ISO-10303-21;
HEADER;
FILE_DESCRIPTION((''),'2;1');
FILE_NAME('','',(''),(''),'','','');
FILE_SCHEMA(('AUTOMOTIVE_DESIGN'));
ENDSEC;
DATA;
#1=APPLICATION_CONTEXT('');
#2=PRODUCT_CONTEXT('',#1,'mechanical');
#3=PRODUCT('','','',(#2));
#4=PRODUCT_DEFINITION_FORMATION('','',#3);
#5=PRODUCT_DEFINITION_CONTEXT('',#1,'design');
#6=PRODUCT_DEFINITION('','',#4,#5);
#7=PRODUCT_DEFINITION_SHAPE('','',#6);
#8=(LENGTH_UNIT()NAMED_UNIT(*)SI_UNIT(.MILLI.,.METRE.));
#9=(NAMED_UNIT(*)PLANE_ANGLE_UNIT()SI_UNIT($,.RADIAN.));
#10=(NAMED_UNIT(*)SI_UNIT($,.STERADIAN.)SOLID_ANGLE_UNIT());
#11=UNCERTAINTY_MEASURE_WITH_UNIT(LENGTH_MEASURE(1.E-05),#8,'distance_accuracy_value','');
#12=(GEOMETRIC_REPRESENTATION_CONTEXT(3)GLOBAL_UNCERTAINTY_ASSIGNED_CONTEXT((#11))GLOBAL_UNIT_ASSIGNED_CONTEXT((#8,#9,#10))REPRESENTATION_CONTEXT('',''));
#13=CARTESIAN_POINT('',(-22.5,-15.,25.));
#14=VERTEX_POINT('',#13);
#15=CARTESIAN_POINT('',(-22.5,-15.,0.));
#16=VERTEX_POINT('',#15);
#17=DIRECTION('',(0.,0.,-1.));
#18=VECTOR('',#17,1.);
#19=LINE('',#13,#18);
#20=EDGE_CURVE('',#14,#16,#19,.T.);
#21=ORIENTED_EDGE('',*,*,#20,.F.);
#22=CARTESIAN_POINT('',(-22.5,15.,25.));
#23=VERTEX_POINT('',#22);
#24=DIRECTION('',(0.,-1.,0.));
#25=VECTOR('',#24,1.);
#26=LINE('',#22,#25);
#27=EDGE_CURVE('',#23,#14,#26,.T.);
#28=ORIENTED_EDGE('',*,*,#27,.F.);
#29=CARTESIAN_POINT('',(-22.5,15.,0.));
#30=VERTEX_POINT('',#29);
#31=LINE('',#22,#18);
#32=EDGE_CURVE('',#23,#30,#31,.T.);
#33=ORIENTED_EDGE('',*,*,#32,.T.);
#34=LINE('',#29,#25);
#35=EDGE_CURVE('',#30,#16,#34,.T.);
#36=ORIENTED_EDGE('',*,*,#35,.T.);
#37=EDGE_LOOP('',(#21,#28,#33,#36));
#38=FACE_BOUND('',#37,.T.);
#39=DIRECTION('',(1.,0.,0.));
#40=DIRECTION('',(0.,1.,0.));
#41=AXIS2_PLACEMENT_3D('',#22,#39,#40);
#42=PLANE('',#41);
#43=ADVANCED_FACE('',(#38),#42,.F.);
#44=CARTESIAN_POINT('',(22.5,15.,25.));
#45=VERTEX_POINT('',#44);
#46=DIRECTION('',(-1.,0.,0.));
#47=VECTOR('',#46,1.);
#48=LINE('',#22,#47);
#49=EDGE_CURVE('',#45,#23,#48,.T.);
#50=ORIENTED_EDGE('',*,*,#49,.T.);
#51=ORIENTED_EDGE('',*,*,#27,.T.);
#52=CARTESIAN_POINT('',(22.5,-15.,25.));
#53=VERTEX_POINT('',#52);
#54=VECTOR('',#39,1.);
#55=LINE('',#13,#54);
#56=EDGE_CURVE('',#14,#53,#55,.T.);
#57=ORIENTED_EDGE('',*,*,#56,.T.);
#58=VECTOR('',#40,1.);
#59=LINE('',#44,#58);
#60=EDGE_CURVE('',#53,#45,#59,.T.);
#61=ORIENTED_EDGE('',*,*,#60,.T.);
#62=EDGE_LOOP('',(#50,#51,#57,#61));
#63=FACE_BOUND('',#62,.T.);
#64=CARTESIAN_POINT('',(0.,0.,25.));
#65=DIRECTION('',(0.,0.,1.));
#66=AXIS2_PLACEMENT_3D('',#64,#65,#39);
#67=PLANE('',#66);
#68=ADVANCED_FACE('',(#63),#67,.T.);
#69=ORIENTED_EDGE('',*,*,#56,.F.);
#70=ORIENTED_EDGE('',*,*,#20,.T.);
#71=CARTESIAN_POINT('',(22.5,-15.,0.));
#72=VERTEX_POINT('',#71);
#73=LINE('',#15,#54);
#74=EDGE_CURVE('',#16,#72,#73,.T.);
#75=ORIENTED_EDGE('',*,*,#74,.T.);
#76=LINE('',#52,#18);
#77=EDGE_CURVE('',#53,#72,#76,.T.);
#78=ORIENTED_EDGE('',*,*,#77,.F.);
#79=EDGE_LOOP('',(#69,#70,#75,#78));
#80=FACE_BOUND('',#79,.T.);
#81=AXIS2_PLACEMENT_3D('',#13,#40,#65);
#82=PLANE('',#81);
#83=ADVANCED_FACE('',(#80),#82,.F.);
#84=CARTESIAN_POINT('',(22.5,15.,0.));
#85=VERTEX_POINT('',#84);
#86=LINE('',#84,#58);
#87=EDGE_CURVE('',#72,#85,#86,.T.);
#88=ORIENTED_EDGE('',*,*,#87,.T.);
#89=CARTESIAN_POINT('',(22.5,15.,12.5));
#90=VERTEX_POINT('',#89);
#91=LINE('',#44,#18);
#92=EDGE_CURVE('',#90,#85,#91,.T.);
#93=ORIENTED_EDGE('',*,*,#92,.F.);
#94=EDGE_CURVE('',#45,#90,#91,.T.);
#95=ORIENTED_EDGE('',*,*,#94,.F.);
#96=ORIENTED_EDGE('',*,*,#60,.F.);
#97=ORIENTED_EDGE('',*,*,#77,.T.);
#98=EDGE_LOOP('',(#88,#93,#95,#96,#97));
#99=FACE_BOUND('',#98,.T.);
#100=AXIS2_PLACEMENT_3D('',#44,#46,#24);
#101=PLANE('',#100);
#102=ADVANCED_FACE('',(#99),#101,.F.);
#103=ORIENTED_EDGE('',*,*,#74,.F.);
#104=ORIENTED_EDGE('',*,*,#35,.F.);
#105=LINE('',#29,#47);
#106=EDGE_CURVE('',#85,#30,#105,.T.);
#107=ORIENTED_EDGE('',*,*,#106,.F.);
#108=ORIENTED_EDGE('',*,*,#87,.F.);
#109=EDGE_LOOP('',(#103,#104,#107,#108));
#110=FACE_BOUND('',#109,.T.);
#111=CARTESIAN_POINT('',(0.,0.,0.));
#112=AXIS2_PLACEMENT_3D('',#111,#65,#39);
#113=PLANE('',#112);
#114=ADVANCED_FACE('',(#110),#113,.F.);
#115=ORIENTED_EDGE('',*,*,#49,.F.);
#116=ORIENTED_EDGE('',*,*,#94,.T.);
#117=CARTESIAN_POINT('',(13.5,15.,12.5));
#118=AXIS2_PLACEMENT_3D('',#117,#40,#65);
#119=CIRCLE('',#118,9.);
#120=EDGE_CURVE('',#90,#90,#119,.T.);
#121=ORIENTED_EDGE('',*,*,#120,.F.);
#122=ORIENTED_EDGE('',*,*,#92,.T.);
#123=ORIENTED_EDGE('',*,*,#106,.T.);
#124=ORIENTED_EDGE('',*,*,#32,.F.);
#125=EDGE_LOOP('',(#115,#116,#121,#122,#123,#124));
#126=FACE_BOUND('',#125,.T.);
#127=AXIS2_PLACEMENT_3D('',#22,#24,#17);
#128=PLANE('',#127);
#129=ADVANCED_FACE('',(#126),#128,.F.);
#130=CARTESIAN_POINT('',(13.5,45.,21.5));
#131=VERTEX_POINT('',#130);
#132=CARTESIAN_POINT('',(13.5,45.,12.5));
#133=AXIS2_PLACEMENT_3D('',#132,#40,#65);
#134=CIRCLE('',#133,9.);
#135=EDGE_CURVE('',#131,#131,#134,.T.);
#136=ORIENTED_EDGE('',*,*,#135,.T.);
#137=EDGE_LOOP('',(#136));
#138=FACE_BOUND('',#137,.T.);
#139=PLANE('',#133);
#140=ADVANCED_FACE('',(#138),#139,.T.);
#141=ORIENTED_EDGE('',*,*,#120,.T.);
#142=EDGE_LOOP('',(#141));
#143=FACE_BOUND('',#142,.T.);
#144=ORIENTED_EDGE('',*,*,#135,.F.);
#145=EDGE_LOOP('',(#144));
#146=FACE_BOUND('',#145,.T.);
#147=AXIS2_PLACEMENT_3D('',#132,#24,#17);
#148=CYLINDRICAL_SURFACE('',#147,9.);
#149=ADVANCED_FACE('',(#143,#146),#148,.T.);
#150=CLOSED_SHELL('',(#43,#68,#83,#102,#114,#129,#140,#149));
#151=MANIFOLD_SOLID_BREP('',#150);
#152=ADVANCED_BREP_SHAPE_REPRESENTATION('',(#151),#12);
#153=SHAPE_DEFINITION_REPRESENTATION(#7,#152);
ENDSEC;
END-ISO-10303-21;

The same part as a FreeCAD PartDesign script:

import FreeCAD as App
import Part
import Sketcher

V = App.Vector
Q = App.Units.Quantity

doc = App.newDocument("Part")
params = doc.addObject("Spreadsheet::Sheet", "Params")
for row, (alias, value) in enumerate([
    ("sketch1_width", "45 mm"),
    ("sketch1_height", "30 mm"),
    ("pad1_length", "25 mm"),
    ("sketch2_diameter", "18 mm"),
    ("pad2_length", "30 mm"),
], start=1):
    params.set(f"A{row}", alias)
    params.set(f"B{row}", "=" + value)
    params.setAlias(f"B{row}", alias)

body = doc.addObject("PartDesign::Body", "Body")

# Sketch on XY plane
sketch1 = body.newObject("Sketcher::SketchObject", "Sketch")
sketch1.AttachmentSupport = (doc.getObject("XY_Plane"), [""])
sketch1.MapMode = "FlatFace"
sketch1.addGeometry(Part.LineSegment(V(-22, 15, 0), V(-22, -15, 0)), False)
sketch1.addGeometry(Part.LineSegment(V(-22, -15, 0), V(22, -15, 0)), False)
sketch1.addGeometry(Part.LineSegment(V(22, -15, 0), V(22, 15, 0)), False)
sketch1.addGeometry(Part.LineSegment(V(22, 15, 0), V(-22, 15, 0)), False)
sketch1.addConstraint(Sketcher.Constraint("Coincident", 0, 2, 1, 1))
sketch1.addConstraint(Sketcher.Constraint("Coincident", 1, 2, 2, 1))
sketch1.addConstraint(Sketcher.Constraint("Coincident", 2, 2, 3, 1))
sketch1.addConstraint(Sketcher.Constraint("Coincident", 3, 2, 0, 1))
sketch1.addConstraint(Sketcher.Constraint("Vertical", 0))
sketch1.addConstraint(Sketcher.Constraint("Horizontal", 1))
sketch1.addConstraint(Sketcher.Constraint("Vertical", 2))
sketch1.addConstraint(Sketcher.Constraint("Horizontal", 3))
sketch1.addConstraint(Sketcher.Constraint("Symmetric", 0, 2, 2, 2, -1, 1))
sketch1.addConstraint(Sketcher.Constraint("DistanceX", 1, 1, 1, 2, Q("45 mm")))
sketch1.addConstraint(Sketcher.Constraint("DistanceY", 0, 2, 0, 1, Q("30 mm")))
sketch1.setExpression("Constraints[9]", "Params.sketch1_width")
sketch1.setExpression("Constraints[10]", "Params.sketch1_height")
pad1 = body.newObject("PartDesign::Pad", "Pad")
pad1.Profile = sketch1
pad1.setExpression("Length", "Params.pad1_length")

# Sketch on XZ plane
sketch2 = body.newObject("Sketcher::SketchObject", "Sketch001")
sketch2.AttachmentSupport = (doc.getObject("XZ_Plane"), [""])
sketch2.MapMode = "FlatFace"
sketch2.AttachmentOffset = App.Placement(V(0, 0, -15), App.Rotation())
sketch2.addGeometry(Part.Circle(V(14, 12, 0), V(0, 0, 1), 9), False)
sketch2.addConstraint(Sketcher.Constraint("Diameter", 0, Q("18 mm")))
sketch2.addConstraint(Sketcher.Constraint("DistanceX", -1, 1, 0, 3, Q("13.5 mm")))
sketch2.addConstraint(Sketcher.Constraint("DistanceY", -1, 1, 0, 3, Q("12.5 mm")))
sketch2.setExpression("Constraints[0]", "Params.sketch2_diameter")
pad2 = body.newObject("PartDesign::Pad", "Pad001")
pad2.Profile = sketch2
pad2.setExpression("Length", "Params.pad2_length")
pad2.Reversed = True

doc.recompute()
